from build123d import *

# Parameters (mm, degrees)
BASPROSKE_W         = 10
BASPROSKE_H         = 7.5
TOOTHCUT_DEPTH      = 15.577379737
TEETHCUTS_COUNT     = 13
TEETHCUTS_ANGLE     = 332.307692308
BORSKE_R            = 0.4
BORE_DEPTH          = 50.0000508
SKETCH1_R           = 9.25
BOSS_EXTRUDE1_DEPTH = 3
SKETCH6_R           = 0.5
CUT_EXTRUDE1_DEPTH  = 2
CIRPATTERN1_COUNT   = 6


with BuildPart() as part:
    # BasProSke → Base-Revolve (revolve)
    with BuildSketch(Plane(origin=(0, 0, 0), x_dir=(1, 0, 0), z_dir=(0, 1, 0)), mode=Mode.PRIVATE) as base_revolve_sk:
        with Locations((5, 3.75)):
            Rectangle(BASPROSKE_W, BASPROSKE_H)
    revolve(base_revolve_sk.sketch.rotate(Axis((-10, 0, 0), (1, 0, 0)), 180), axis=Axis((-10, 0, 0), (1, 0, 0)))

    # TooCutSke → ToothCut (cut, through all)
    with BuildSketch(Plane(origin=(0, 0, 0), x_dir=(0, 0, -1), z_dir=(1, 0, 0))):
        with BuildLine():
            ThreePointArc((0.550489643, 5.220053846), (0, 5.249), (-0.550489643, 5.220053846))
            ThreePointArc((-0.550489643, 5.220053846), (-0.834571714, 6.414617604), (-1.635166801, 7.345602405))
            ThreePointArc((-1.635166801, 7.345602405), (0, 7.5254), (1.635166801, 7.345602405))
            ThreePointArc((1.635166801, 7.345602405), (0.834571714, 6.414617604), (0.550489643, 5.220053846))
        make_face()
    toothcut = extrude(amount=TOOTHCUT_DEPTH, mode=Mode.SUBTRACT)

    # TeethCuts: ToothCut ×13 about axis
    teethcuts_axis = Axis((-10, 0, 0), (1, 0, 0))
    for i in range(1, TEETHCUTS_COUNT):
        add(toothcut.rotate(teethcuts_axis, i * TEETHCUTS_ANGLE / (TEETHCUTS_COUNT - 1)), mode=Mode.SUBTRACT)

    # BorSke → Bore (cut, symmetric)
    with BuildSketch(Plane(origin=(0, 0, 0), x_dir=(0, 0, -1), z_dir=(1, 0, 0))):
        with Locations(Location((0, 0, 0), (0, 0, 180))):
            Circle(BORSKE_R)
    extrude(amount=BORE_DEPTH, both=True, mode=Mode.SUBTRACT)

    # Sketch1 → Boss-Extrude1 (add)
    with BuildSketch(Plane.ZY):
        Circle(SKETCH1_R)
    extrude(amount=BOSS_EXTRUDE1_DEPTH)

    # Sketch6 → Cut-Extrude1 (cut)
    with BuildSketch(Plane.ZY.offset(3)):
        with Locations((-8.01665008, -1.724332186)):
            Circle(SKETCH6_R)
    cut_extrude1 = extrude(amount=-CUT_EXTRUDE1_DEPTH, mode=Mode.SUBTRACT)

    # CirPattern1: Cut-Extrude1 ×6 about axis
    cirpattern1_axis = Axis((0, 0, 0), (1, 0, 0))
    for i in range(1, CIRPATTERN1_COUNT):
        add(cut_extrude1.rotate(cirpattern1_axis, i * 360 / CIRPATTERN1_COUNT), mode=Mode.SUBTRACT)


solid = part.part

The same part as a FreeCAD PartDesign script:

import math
import FreeCAD as App
import Part
import Sketcher

V = App.Vector
Q = App.Units.Quantity

doc = App.newDocument("Part")
body = doc.addObject("PartDesign::Body", "Body")

# Sketch on XZ plane
sketch1 = doc.addObject("Sketcher::SketchObject", "Sketch")
body.addObject(sketch1)
sketch1.AttachmentSupport = (doc.XZ_Plane, [""])
sketch1.MapMode = "FlatFace"
sketch1.addGeometry(Part.LineSegment(V(0, -7.5, 0), V(0, 0, 0)), False)
sketch1.addGeometry(Part.LineSegment(V(0, 0, 0), V(10, 0, 0)), False)
sketch1.addGeometry(Part.LineSegment(V(10, 0, 0), V(10, -7.5, 0)), False)
sketch1.addGeometry(Part.LineSegment(V(10, -7.5, 0), V(0, -7.5, 0)), False)
sketch1.addConstraint(Sketcher.Constraint("Coincident", 0, 2, 1, 1))
sketch1.addConstraint(Sketcher.Constraint("Coincident", 1, 2, 2, 1))
sketch1.addConstraint(Sketcher.Constraint("Coincident", 2, 2, 3, 1))
sketch1.addConstraint(Sketcher.Constraint("Coincident", 3, 2, 0, 1))
sketch1.addConstraint(Sketcher.Constraint("Vertical", 0))
sketch1.addConstraint(Sketcher.Constraint("Horizontal", 1))
sketch1.addConstraint(Sketcher.Constraint("Vertical", 2))
sketch1.addConstraint(Sketcher.Constraint("Horizontal", 3))
sketch1.addConstraint(Sketcher.Constraint("Coincident", 0, 2, -1, 1))
sketch1.addConstraint(Sketcher.Constraint("DistanceX", 1, 1, 1, 2, Q("10 mm")))
sketch1.addConstraint(Sketcher.Constraint("DistanceY", 0, 1, 0, 2, Q("7.5 mm")))
revolution = doc.addObject("PartDesign::Revolution", "Revolution")
body.addObject(revolution)
revolution.Profile = sketch1
revolution.ReferenceAxis = (sketch1, ["H_Axis"])
revolution.Angle = 360

# Sketch on YZ plane
sketch2 = doc.addObject("Sketcher::SketchObject", "Sketch001")
body.addObject(sketch2)
sketch2.AttachmentSupport = (doc.YZ_Plane, [""])
sketch2.MapMode = "FlatFace"
sketch2.addGeometry(Part.ArcOfCircle(Part.Circle(V(0, 0, 0), V(0, 0, 1), 5.249), math.radians(-6.019973), math.radians(6.019973)), False)
sketch2.addGeometry(Part.ArcOfCircle(Part.Circle(V(5.23281, -3.150458, 0), V(0, 0, 1), 2.6), math.radians(35.648035), math.radians(90.281108)), False)
sketch2.addGeometry(Part.ArcOfCircle(Part.Circle(V(0, 0, 0), V(0, 0, 1), 7.5254), math.radians(-12.549698), math.radians(12.549698)), False)
sketch2.addGeometry(Part.ArcOfCircle(Part.Circle(V(5.23281, 3.150458, 0), V(0, 0, 1), 2.6), math.radians(-90.281108), math.radians(-35.648035)), False)
sketch2.addConstraint(Sketcher.Constraint("Coincident", 0, 1, 1, 2))
sketch2.addConstraint(Sketcher.Constraint("Coincident", 1, 1, 2, 1))
sketch2.addConstraint(Sketcher.Constraint("Coincident", 2, 2, 3, 2))
sketch2.addConstraint(Sketcher.Constraint("Coincident", 3, 1, 0, 2))
sketch2.addConstraint(Sketcher.Constraint("Coincident", 0, 3, -1, 1))
sketch2.addConstraint(Sketcher.Constraint("Coincident", 2, 3, -1, 1))
sketch2.addConstraint(Sketcher.Constraint("Equal", 1, 3))
sketch2.addConstraint(Sketcher.Constraint("Symmetric", 1, 3, 3, 3, -1))
sketch2.addConstraint(Sketcher.Constraint("Radius", 1, Q("2.6 mm")))
sketch2.addConstraint(Sketcher.Constraint("Radius", 0, Q("5.249 mm")))
sketch2.addConstraint(Sketcher.Constraint("Radius", 2, Q("7.5254 mm")))
sketch2.addConstraint(Sketcher.Constraint("DistanceX", -1, 1, 1, 3, Q("5.23281 mm")))
sketch2.addConstraint(Sketcher.Constraint("DistanceY", 1, 3, -1, 1, Q("3.150458 mm")))
pocket1 = doc.addObject("PartDesign::Pocket", "Pocket")
body.addObject(pocket1)
pocket1.Profile = sketch2
pocket1.Type = "ThroughAll"
pocket1.Reversed = True
doc.recompute()

polarpattern = doc.addObject("PartDesign::PolarPattern", "PolarPattern")
body.addObject(polarpattern)
polarpattern.Originals = [pocket1]
polarpattern.Axis = (doc.X_Axis, [""])
polarpattern.Angle = 360
polarpattern.Occurrences = 13
body.Tip = polarpattern

# Sketch on YZ plane
sketch3 = doc.addObject("Sketcher::SketchObject", "Sketch002")
body.addObject(sketch3)
sketch3.AttachmentSupport = (doc.YZ_Plane, [""])
sketch3.MapMode = "FlatFace"
sketch3.addGeometry(Part.Circle(V(0, 0, 0), V(0, 0, 1), 0.4), False)
sketch3.addConstraint(Sketcher.Constraint("Coincident", 0, 3, -1, 1))
sketch3.addConstraint(Sketcher.Constraint("Diameter", 0, Q("0.8 mm")))
pocket2 = doc.addObject("PartDesign::Pocket", "Pocket001")
body.addObject(pocket2)
pocket2.Profile = sketch3
pocket2.Length = 100.000102
pocket2.Midplane = True

# Sketch on YZ plane
sketch4 = doc.addObject("Sketcher::SketchObject", "Sketch003")
body.addObject(sketch4)
sketch4.AttachmentSupport = (doc.YZ_Plane, [""])
sketch4.MapMode = "FlatFace"
sketch4.addGeometry(Part.Circle(V(0, 0, 0), V(0, 0, 1), 9.25), False)
sketch4.addConstraint(Sketcher.Constraint("Coincident", 0, 3, -1, 1))
sketch4.addConstraint(Sketcher.Constraint("Diameter", 0, Q("18.5 mm")))
pad1 = doc.addObject("PartDesign::Pad", "Pad")
body.addObject(pad1)
pad1.Profile = sketch4
pad1.Length = 3
pad1.Reversed = True

# Sketch on YZ plane
sketch5 = doc.addObject("Sketcher::SketchObject", "Sketch004")
body.addObject(sketch5)
sketch5.AttachmentSupport = (doc.YZ_Plane, [""])
sketch5.MapMode = "FlatFace"
sketch5.AttachmentOffset = App.Placement(V(0, 0, -3), App.Rotation())
sketch5.addGeometry(Part.Circle(V(-1.724332, -8.01665, 0), V(0, 0, 1), 0.5), False)
sketch5.addConstraint(Sketcher.Constraint("Diameter", 0, Q("1 mm")))
sketch5.addConstraint(Sketcher.Constraint("DistanceY", 0, 3, -1, 1, Q("8.01665 mm")))
sketch5.addConstraint(Sketcher.Constraint("DistanceX", 0, 3, -1, 1, Q("1.724332 mm")))
pocket3 = doc.addObject("PartDesign::Pocket", "Pocket002")
body.addObject(pocket3)
pocket3.Profile = sketch5
pocket3.Length = 2
pocket3.Reversed = True
doc.recompute()

polarpattern2 = doc.addObject("PartDesign::PolarPattern", "PolarPattern001")
body.addObject(polarpattern2)
polarpattern2.Originals = [pocket3]
polarpattern2.Axis = (doc.X_Axis, [""])
polarpattern2.Angle = 360
polarpattern2.Occurrences = 6
body.Tip = polarpattern2

doc.recompute()
